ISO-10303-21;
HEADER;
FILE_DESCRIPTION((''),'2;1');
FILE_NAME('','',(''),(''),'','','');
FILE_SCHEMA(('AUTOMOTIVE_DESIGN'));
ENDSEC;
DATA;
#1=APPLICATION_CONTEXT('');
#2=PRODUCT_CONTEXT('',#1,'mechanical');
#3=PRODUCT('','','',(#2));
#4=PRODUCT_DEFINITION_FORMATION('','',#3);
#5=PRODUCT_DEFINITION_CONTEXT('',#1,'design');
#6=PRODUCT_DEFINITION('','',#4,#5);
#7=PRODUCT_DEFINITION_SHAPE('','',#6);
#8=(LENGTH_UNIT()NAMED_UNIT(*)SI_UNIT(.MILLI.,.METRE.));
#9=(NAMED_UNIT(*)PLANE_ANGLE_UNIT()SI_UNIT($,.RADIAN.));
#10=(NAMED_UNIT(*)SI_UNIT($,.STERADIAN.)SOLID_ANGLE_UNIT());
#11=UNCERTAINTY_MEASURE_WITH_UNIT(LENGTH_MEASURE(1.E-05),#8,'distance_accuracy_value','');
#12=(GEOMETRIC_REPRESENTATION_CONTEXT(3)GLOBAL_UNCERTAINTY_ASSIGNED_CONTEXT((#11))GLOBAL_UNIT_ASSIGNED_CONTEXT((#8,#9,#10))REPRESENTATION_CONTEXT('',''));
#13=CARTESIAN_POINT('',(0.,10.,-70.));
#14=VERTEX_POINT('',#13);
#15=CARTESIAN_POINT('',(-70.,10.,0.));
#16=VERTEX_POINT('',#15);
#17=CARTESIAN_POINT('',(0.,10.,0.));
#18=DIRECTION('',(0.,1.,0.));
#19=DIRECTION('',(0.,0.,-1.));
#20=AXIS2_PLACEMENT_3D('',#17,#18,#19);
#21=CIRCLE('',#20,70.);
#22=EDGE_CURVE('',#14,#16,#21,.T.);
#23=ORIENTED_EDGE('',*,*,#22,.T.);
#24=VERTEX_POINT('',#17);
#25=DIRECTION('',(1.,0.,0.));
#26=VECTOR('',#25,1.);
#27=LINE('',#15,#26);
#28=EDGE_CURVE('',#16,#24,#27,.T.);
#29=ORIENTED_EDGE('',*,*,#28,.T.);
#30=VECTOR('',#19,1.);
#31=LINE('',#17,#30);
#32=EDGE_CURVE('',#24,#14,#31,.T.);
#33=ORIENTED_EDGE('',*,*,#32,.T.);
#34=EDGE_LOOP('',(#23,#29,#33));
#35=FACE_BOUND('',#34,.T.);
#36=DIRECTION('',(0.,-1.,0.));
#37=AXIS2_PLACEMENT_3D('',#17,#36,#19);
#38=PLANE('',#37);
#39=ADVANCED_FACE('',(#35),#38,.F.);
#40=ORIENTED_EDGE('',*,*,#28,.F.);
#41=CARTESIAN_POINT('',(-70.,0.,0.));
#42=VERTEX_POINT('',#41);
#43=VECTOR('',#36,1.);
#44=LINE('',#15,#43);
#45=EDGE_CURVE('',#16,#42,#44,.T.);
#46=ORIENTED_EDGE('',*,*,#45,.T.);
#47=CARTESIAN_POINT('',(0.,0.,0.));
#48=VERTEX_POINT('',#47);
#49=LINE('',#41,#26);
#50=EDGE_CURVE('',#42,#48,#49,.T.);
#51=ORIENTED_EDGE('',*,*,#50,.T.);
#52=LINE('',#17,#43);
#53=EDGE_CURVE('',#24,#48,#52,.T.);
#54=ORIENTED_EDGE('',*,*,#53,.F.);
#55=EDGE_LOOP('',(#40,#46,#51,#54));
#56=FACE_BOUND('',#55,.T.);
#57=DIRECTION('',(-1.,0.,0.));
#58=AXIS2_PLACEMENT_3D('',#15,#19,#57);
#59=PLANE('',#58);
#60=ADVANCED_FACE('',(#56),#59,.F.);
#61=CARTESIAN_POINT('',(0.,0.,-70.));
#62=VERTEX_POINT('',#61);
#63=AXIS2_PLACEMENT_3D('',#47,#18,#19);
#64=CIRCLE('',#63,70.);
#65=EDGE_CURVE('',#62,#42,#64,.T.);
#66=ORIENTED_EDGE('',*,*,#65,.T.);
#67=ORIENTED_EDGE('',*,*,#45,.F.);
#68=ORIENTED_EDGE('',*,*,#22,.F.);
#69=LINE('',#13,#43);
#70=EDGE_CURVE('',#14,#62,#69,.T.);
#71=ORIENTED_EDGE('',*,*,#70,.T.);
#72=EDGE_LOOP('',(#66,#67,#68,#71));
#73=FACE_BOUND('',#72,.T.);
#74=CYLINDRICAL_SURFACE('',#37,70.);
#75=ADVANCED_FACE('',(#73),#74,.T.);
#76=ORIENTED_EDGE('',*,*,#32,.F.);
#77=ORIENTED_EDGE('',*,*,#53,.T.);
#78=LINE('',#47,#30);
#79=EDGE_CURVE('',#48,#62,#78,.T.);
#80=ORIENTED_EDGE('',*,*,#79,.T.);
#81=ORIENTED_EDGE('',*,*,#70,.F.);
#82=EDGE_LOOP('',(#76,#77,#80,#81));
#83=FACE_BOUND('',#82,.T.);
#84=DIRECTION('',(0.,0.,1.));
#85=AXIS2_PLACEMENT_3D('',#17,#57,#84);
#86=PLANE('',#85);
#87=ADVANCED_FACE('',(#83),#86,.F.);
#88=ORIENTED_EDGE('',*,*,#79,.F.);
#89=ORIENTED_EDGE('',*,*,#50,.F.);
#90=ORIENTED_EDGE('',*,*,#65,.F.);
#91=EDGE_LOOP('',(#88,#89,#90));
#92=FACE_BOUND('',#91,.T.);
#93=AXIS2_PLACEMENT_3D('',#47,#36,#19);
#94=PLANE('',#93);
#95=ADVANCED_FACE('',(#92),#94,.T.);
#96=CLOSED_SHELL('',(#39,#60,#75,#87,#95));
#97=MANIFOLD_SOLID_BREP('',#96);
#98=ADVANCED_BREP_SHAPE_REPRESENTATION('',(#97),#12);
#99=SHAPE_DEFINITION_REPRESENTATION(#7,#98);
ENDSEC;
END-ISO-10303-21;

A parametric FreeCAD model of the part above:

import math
import FreeCAD as App
import Part
import Sketcher

V = App.Vector
Q = App.Units.Quantity

doc = App.newDocument("Part")
body = doc.addObject("PartDesign::Body", "Body")

# Sketch on XZ plane
sketch1 = doc.addObject("Sketcher::SketchObject", "Sketch")
body.addObject(sketch1)
sketch1.AttachmentSupport = (doc.XZ_Plane, [""])
sketch1.MapMode = "FlatFace"
sketch1.addGeometry([
    Part.LineSegment(V(-70, 0, 0), V(0, 0, 0)),
    Part.LineSegment(V(0, 0, 0), V(0, -70, 0)),
    Part.ArcOfCircle(Part.Circle(V(0, 0, 0), V(0, 0, 1), 70), math.radians(180), math.radians(270)),
], False)
sketch1.addConstraint([
    Sketcher.Constraint("Coincident", 0, 2, 1, 1),
    Sketcher.Constraint("Coincident", 1, 2, 2, 2),
    Sketcher.Constraint("Coincident", 2, 1, 0, 1),
    Sketcher.Constraint("Horizontal", 0),
    Sketcher.Constraint("Vertical", 1),
    Sketcher.Constraint("Coincident", 2, 3, -1, 1),
    Sketcher.Constraint("Coincident", 0, 2, -1, 1),
    Sketcher.Constraint("Radius", 2, Q("70 mm")),
])
pad1 = doc.addObject("PartDesign::Pad", "Pad")
body.addObject(pad1)
pad1.Profile = sketch1
pad1.Length = 10
pad1.Reversed = True

doc.recompute()
